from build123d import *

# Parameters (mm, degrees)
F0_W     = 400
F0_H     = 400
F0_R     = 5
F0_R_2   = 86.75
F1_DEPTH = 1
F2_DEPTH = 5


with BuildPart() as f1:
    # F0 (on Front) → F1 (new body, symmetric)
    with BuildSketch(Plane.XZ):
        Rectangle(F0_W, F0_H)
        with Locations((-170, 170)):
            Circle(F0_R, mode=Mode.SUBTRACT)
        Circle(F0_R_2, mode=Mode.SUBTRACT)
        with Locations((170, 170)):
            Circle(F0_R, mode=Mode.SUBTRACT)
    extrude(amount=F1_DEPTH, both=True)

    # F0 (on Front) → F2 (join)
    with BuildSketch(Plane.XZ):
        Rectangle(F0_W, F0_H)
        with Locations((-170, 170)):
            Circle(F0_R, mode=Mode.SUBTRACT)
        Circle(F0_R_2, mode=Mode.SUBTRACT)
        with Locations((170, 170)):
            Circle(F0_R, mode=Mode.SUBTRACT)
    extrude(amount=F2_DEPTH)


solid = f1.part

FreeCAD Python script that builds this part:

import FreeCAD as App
import Part
import Sketcher

V = App.Vector


def add_polygon(sketch, points):
    """Adds a closed chain of lines whose ends are joined by coincident constraints."""
    first, n = sketch.GeometryCount, len(points)
    for a, b in zip(points, points[1:] + points[:1]):
        sketch.addGeometry(Part.LineSegment(App.Vector(*a, 0), App.Vector(*b, 0)), False)
    for i in range(n):
        sketch.addConstraint(Sketcher.Constraint("Coincident", first + i, 2, first + (i + 1) % n, 1))

doc = App.newDocument("Part")
body = doc.addObject("PartDesign::Body", "Body")

# Sketch on XZ plane
sketch1 = doc.addObject("Sketcher::SketchObject", "Sketch")
body.addObject(sketch1)
sketch1.AttachmentSupport = (doc.XZ_Plane, [""])
sketch1.MapMode = "FlatFace"
add_polygon(sketch1, [(-200, 200), (-200, -200), (200, -200), (200, 200)])  # lines 0-3
sketch1.addGeometry(Part.Circle(V(0, 0, 0), V(0, 0, 1), 87), False)  # 4
sketch1.addGeometry(Part.Circle(V(-170, 170, 0), V(0, 0, 1), 5), False)  # 5
sketch1.addGeometry(Part.Circle(V(170, 170, 0), V(0, 0, 1), 5), False)  # 6
sketch1.addConstraint([
    Sketcher.Constraint("Vertical", 0),
    Sketcher.Constraint("Horizontal", 1),
    Sketcher.Constraint("Vertical", 2),
    Sketcher.Constraint("Horizontal", 3),
    Sketcher.Constraint("Coincident", 4, 3, -1, 1),
    Sketcher.Constraint("Equal", 5, 6),
    Sketcher.Constraint("Symmetric", 0, 2, 2, 2, -1, 1),
    Sketcher.Constraint("Symmetric", 5, 3, 6, 3, -2),
    Sketcher.Constraint("Equal", 3, 0),
    Sketcher.Constraint("Diameter", 5, 10.0),
    Sketcher.Constraint("Diameter", 4, 173.5),
    Sketcher.Constraint("DistanceX", 1, 1, 1, 2, 400.0),
    Sketcher.Constraint("DistanceX", 5, 3, -1, 1, 170.0),
    Sketcher.Constraint("DistanceY", -1, 1, 5, 3, 170.0),
])
pad1 = doc.addObject("PartDesign::Pad", "Pad")
body.addObject(pad1)
pad1.Profile = sketch1
pad1.Length = 2
pad1.Midplane = True

# Sketch on XZ plane
sketch2 = doc.addObject("Sketcher::SketchObject", "Sketch001")
body.addObject(sketch2)
sketch2.AttachmentSupport = (doc.XZ_Plane, [""])
sketch2.MapMode = "FlatFace"
add_polygon(sketch2, [(-200, 200), (-200, -200), (200, -200), (200, 200)])  # lines 0-3
sketch2.addGeometry(Part.Circle(V(0, 0, 0), V(0, 0, 1), 87), False)  # 4
sketch2.addGeometry(Part.Circle(V(-170, 170, 0), V(0, 0, 1), 5), False)  # 5
sketch2.addGeometry(Part.Circle(V(170, 170, 0), V(0, 0, 1), 5), False)  # 6
sketch2.addConstraint([
    Sketcher.Constraint("Vertical", 0),
    Sketcher.Constraint("Horizontal", 1),
    Sketcher.Constraint("Vertical", 2),
    Sketcher.Constraint("Horizontal", 3),
    Sketcher.Constraint("Coincident", 4, 3, -1, 1),
    Sketcher.Constraint("Equal", 5, 6),
    Sketcher.Constraint("Symmetric", 0, 2, 2, 2, -1, 1),
    Sketcher.Constraint("Symmetric", 5, 3, 6, 3, -2),
    Sketcher.Constraint("Equal", 3, 0),
    Sketcher.Constraint("Diameter", 5, 10.0),
    Sketcher.Constraint("Diameter", 4, 173.5),
    Sketcher.Constraint("DistanceX", 1, 1, 1, 2, 400.0),
    Sketcher.Constraint("DistanceX", 5, 3, -1, 1, 170.0),
    Sketcher.Constraint("DistanceY", -1, 1, 5, 3, 170.0),
])
pad2 = doc.addObject("PartDesign::Pad", "Pad001")
body.addObject(pad2)
pad2.Profile = sketch2
pad2.Length = 5

doc.recompute()
